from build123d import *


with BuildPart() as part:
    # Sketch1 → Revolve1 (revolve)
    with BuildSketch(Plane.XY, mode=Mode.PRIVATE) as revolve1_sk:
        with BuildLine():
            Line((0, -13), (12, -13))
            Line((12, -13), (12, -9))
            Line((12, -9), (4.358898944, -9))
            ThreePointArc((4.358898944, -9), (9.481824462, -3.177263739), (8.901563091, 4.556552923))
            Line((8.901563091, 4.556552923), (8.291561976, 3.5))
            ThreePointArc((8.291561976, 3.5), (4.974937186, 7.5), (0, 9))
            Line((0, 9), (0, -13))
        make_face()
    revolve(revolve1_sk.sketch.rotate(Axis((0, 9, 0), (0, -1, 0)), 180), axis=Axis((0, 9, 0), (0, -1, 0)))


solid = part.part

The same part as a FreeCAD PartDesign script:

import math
import FreeCAD as App
import Part
import Sketcher

V = App.Vector
Q = App.Units.Quantity

doc = App.newDocument("Part")
body = doc.addObject("PartDesign::Body", "Body")

# Sketch on XY plane
sketch1 = body.newObject("Sketcher::SketchObject", "Sketch")
sketch1.AttachmentSupport = (doc.getObject("XY_Plane"), [""])
sketch1.MapMode = "FlatFace"
sketch1.addGeometry([
    Part.LineSegment(V(0, -13, 0), V(12, -13, 0)),  # 0
    Part.LineSegment(V(12, -13, 0), V(12, -9, 0)),  # 1
    Part.LineSegment(V(12, -9, 0), V(4.4, -9, 0)),  # 2
    Part.ArcOfCircle(Part.Circle(V(0, 0, 0), V(0, 0, 1), 10), math.radians(-64), math.radians(27)),  # 3
    Part.LineSegment(V(8.9, 4.6, 0), V(8.3, 3.5, 0)),  # 4
    Part.ArcOfCircle(Part.Circle(V(0, 0, 0), V(0, 0, 1), 9), math.radians(23), math.radians(90)),  # 5
    Part.LineSegment(V(0, 9, 0), V(0, -13, 0)),  # 6
], False)
sketch1.addConstraint([
    Sketcher.Constraint("Coincident", 0, 2, 1, 1),
    Sketcher.Constraint("Coincident", 1, 2, 2, 1),
    Sketcher.Constraint("Coincident", 2, 2, 3, 1),
    Sketcher.Constraint("Coincident", 3, 2, 4, 1),
    Sketcher.Constraint("Coincident", 4, 2, 5, 1),
    Sketcher.Constraint("Coincident", 5, 2, 6, 1),
    Sketcher.Constraint("Coincident", 6, 2, 0, 1),
    Sketcher.Constraint("Horizontal", 0),
    Sketcher.Constraint("Vertical", 1),
    Sketcher.Constraint("Horizontal", 2),
    Sketcher.Constraint("Vertical", 6),
    Sketcher.Constraint("Coincident", 3, 3, -1, 1),
    Sketcher.Constraint("Coincident", 5, 3, -1, 1),
    Sketcher.Constraint("PointOnObject", 5, 2, -2),
    Sketcher.Constraint("Radius", 3, Q("10 mm")),
    Sketcher.Constraint("Radius", 5, Q("9 mm")),
    Sketcher.Constraint("DistanceX", 0, 1, 0, 2, Q("12 mm")),
    Sketcher.Constraint("DistanceY", 1, 1, 1, 2, Q("4 mm")),
    Sketcher.Constraint("DistanceY", 6, 2, 6, 1, Q("22 mm")),
    Sketcher.Constraint("Angle", 4, Q("-120 deg")),
    Sketcher.Constraint("DistanceY", -1, 1, 4, 2, Q("3.5 mm")),
])
revolution = body.newObject("PartDesign::Revolution", "Revolution")
revolution.Profile = sketch1
revolution.ReferenceAxis = (sketch1, ["V_Axis"])
revolution.Angle = 360

doc.recompute()
